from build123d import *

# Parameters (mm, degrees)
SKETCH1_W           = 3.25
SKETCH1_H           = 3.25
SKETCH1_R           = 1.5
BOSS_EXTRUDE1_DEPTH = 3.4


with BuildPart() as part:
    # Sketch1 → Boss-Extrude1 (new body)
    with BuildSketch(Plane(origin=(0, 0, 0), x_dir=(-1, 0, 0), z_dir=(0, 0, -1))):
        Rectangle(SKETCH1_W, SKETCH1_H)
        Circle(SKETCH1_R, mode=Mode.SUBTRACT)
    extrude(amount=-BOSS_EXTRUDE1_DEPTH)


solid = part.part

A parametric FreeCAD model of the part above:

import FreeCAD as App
import Part
import Sketcher
Q = App.Units.Quantity


def add_polygon(sketch, points):
    """Adds a closed chain of lines whose ends are joined by coincident constraints."""
    first, n = sketch.GeometryCount, len(points)
    for a, b in zip(points, points[1:] + points[:1]):
        sketch.addGeometry(Part.LineSegment(App.Vector(*a, 0), App.Vector(*b, 0)), False)
    for i in range(n):
        sketch.addConstraint(Sketcher.Constraint("Coincident", first + i, 2, first + (i + 1) % n, 1))

doc = App.newDocument("Part")
body = doc.addObject("PartDesign::Body", "Body")

# Sketch on XY plane
sketch1 = body.newObject("Sketcher::SketchObject", "Sketch")
sketch1.AttachmentSupport = (doc.getObject("XY_Plane"), [""])
sketch1.MapMode = "FlatFace"
add_polygon(sketch1, [(1.6, 1.6), (1.6, -1.6), (-1.6, -1.6), (-1.6, 1.6)])  # lines 0-3
sketch1.addGeometry(Part.Circle(App.Vector(0, 0, 0), App.Vector(0, 0, 1), 1.5), False)  # 4
sketch1.addConstraint([
    Sketcher.Constraint("Vertical", 0),
    Sketcher.Constraint("Horizontal", 1),
    Sketcher.Constraint("Vertical", 2),
    Sketcher.Constraint("Horizontal", 3),
    Sketcher.Constraint("Coincident", 4, 3, -1, 1),
    Sketcher.Constraint("Symmetric", 0, 2, 2, 2, -1, 1),
    Sketcher.Constraint("Equal", 3, 0),
    Sketcher.Constraint("Diameter", 4, Q("3 mm")),
    Sketcher.Constraint("DistanceX", 1, 2, 1, 1, Q("3.25 mm")),
])
pad1 = body.newObject("PartDesign::Pad", "Pad")
pad1.Profile = sketch1
pad1.Length = 3.4

doc.recompute()
